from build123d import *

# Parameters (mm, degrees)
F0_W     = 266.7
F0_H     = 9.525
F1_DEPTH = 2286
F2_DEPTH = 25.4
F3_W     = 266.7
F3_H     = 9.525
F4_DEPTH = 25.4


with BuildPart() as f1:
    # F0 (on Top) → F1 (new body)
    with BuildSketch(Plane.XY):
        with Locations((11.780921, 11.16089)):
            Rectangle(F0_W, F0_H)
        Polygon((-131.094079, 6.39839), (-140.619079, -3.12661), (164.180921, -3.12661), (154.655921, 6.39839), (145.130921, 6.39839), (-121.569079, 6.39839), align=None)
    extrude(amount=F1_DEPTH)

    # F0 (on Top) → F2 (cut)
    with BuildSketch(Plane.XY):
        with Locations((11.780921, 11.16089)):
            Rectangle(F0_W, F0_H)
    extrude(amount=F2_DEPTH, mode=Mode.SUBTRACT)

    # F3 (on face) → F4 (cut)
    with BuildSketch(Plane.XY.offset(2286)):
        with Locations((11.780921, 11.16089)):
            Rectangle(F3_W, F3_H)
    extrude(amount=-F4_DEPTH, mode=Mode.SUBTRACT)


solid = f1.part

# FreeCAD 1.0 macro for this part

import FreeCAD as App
import Part
import Sketcher

V = App.Vector
Q = App.Units.Quantity

doc = App.newDocument("Part")
params = doc.addObject("Spreadsheet::Sheet", "Params")
for row, (alias, value) in enumerate([
    ("sketch1_width", "12 in"),
    ("sketch1_width2", "10.5 in"),
    ("sketch1_width3", "0.375 in"),
    ("pad1_length", "90 in"),
    ("sketch2_width", "10.5 in"),
    ("sketch2_height", "0.375 in"),
    ("pocket1_length", "1 in"),
    ("sketch3_width", "10.5 in"),
    ("sketch3_height", "0.375 in"),
    ("pocket2_length", "1 in"),
], start=1):
    params.set(f"A{row}", alias)
    params.set(f"B{row}", "=" + value)
    params.setAlias(f"B{row}", alias)

body = doc.addObject("PartDesign::Body", "Body")

# Sketch on XY plane
sketch1 = body.newObject("Sketcher::SketchObject", "Sketch")
sketch1.AttachmentSupport = (doc.getObject("XY_Plane"), [""])
sketch1.MapMode = "FlatFace"
sketch1.addGeometry(Part.LineSegment(V(-122, 16, 0), V(-122, 6, 0)), False)
sketch1.addGeometry(Part.LineSegment(V(-122, 6, 0), V(-131, 6, 0)), False)
sketch1.addGeometry(Part.LineSegment(V(-131, 6, 0), V(-141, -3, 0)), False)
sketch1.addGeometry(Part.LineSegment(V(-141, -3, 0), V(164, -3, 0)), False)
sketch1.addGeometry(Part.LineSegment(V(164, -3, 0), V(155, 6, 0)), False)
sketch1.addGeometry(Part.LineSegment(V(155, 6, 0), V(145, 6, 0)), False)
sketch1.addGeometry(Part.LineSegment(V(145, 6, 0), V(145, 16, 0)), False)
sketch1.addGeometry(Part.LineSegment(V(145, 16, 0), V(-122, 16, 0)), False)
sketch1.addConstraint(Sketcher.Constraint("Coincident", 0, 2, 1, 1))
sketch1.addConstraint(Sketcher.Constraint("Coincident", 1, 2, 2, 1))
sketch1.addConstraint(Sketcher.Constraint("Coincident", 2, 2, 3, 1))
sketch1.addConstraint(Sketcher.Constraint("Coincident", 3, 2, 4, 1))
sketch1.addConstraint(Sketcher.Constraint("Coincident", 4, 2, 5, 1))
sketch1.addConstraint(Sketcher.Constraint("Coincident", 5, 2, 6, 1))
sketch1.addConstraint(Sketcher.Constraint("Coincident", 6, 2, 7, 1))
sketch1.addConstraint(Sketcher.Constraint("Coincident", 7, 2, 0, 1))
sketch1.addConstraint(Sketcher.Constraint("Vertical", 0))
sketch1.addConstraint(Sketcher.Constraint("Horizontal", 1))
sketch1.addConstraint(Sketcher.Constraint("Horizontal", 3))
sketch1.addConstraint(Sketcher.Constraint("Horizontal", 5))
sketch1.addConstraint(Sketcher.Constraint("Vertical", 6))
sketch1.addConstraint(Sketcher.Constraint("Horizontal", 7))
sketch1.addConstraint(Sketcher.Constraint("Perpendicular", 2, 4))
sketch1.addConstraint(Sketcher.Constraint("Horizontal", 1, 2, 4, 2))
sketch1.addConstraint(Sketcher.Constraint("Equal", 1, 5))
sketch1.addConstraint(Sketcher.Constraint("Equal", 5, 0))
sketch1.addConstraint(Sketcher.Constraint("Equal", 2, 4))
sketch1.addConstraint(Sketcher.Constraint("DistanceX", 3, 1, 3, 2, Q("12 in")))
sketch1.addConstraint(Sketcher.Constraint("DistanceX", 7, 2, 7, 1, Q("10.5 in")))
sketch1.addConstraint(Sketcher.Constraint("DistanceX", 1, 2, 1, 1, Q("0.375 in")))
sketch1.addConstraint(Sketcher.Constraint("DistanceX", 0, 2, -1, 1, Q("121.569079 mm")))
sketch1.addConstraint(Sketcher.Constraint("DistanceY", -1, 1, 0, 2, Q("6.39839 mm")))
sketch1.setExpression("Constraints[19]", "Params.sketch1_width")
sketch1.setExpression("Constraints[20]", "Params.sketch1_width2")
sketch1.setExpression("Constraints[21]", "Params.sketch1_width3")
pad1 = body.newObject("PartDesign::Pad", "Pad")
pad1.Profile = sketch1
pad1.setExpression("Length", "Params.pad1_length")

# Sketch on XY plane
sketch2 = body.newObject("Sketcher::SketchObject", "Sketch001")
sketch2.AttachmentSupport = (doc.getObject("XY_Plane"), [""])
sketch2.MapMode = "FlatFace"
sketch2.addGeometry(Part.LineSegment(V(-122, 16, 0), V(-122, 6, 0)), False)
sketch2.addGeometry(Part.LineSegment(V(-122, 6, 0), V(145, 6, 0)), False)
sketch2.addGeometry(Part.LineSegment(V(145, 6, 0), V(145, 16, 0)), False)
sketch2.addGeometry(Part.LineSegment(V(145, 16, 0), V(-122, 16, 0)), False)
sketch2.addConstraint(Sketcher.Constraint("Coincident", 0, 2, 1, 1))
sketch2.addConstraint(Sketcher.Constraint("Coincident", 1, 2, 2, 1))
sketch2.addConstraint(Sketcher.Constraint("Coincident", 2, 2, 3, 1))
sketch2.addConstraint(Sketcher.Constraint("Coincident", 3, 2, 0, 1))
sketch2.addConstraint(Sketcher.Constraint("Vertical", 0))
sketch2.addConstraint(Sketcher.Constraint("Horizontal", 1))
sketch2.addConstraint(Sketcher.Constraint("Vertical", 2))
sketch2.addConstraint(Sketcher.Constraint("Horizontal", 3))
sketch2.addConstraint(Sketcher.Constraint("DistanceX", 1, 1, 1, 2, Q("10.5 in")))
sketch2.addConstraint(Sketcher.Constraint("DistanceY", 0, 2, 0, 1, Q("0.375 in")))
sketch2.addConstraint(Sketcher.Constraint("DistanceX", 0, 2, -1, 1, Q("121.569079 mm")))
sketch2.addConstraint(Sketcher.Constraint("DistanceY", -1, 1, 0, 2, Q("6.39839 mm")))
sketch2.setExpression("Constraints[8]", "Params.sketch2_width")
sketch2.setExpression("Constraints[9]", "Params.sketch2_height")
pocket1 = body.newObject("PartDesign::Pocket", "Pocket")
pocket1.Profile = sketch2
pocket1.setExpression("Length", "Params.pocket1_length")
pocket1.Reversed = True

# Sketch on XY plane
sketch3 = body.newObject("Sketcher::SketchObject", "Sketch002")
sketch3.AttachmentSupport = (doc.getObject("XY_Plane"), [""])
sketch3.MapMode = "FlatFace"
sketch3.AttachmentOffset = App.Placement(V(0, 0, 90 * 25.4), App.Rotation())
sketch3.addGeometry(Part.LineSegment(V(-122, 16, 0), V(-122, 6, 0)), False)
sketch3.addGeometry(Part.LineSegment(V(-122, 6, 0), V(145, 6, 0)), False)
sketch3.addGeometry(Part.LineSegment(V(145, 6, 0), V(145, 16, 0)), False)
sketch3.addGeometry(Part.LineSegment(V(145, 16, 0), V(-122, 16, 0)), False)
sketch3.addConstraint(Sketcher.Constraint("Coincident", 0, 2, 1, 1))
sketch3.addConstraint(Sketcher.Constraint("Coincident", 1, 2, 2, 1))
sketch3.addConstraint(Sketcher.Constraint("Coincident", 2, 2, 3, 1))
sketch3.addConstraint(Sketcher.Constraint("Coincident", 3, 2, 0, 1))
sketch3.addConstraint(Sketcher.Constraint("Vertical", 0))
sketch3.addConstraint(Sketcher.Constraint("Horizontal", 1))
sketch3.addConstraint(Sketcher.Constraint("Vertical", 2))
sketch3.addConstraint(Sketcher.Constraint("Horizontal", 3))
sketch3.addConstraint(Sketcher.Constraint("DistanceX", 1, 1, 1, 2, Q("10.5 in")))
sketch3.addConstraint(Sketcher.Constraint("DistanceY", 0, 2, 0, 1, Q("0.375 in")))
sketch3.addConstraint(Sketcher.Constraint("DistanceX", 0, 2, -1, 1, Q("121.569079 mm")))
sketch3.addConstraint(Sketcher.Constraint("DistanceY", -1, 1, 0, 2, Q("6.39839 mm")))
sketch3.setExpression("Constraints[8]", "Params.sketch3_width")
sketch3.setExpression("Constraints[9]", "Params.sketch3_height")
pocket2 = body.newObject("PartDesign::Pocket", "Pocket001")
pocket2.Profile = sketch3
pocket2.setExpression("Length", "Params.pocket2_length")

doc.recompute()
